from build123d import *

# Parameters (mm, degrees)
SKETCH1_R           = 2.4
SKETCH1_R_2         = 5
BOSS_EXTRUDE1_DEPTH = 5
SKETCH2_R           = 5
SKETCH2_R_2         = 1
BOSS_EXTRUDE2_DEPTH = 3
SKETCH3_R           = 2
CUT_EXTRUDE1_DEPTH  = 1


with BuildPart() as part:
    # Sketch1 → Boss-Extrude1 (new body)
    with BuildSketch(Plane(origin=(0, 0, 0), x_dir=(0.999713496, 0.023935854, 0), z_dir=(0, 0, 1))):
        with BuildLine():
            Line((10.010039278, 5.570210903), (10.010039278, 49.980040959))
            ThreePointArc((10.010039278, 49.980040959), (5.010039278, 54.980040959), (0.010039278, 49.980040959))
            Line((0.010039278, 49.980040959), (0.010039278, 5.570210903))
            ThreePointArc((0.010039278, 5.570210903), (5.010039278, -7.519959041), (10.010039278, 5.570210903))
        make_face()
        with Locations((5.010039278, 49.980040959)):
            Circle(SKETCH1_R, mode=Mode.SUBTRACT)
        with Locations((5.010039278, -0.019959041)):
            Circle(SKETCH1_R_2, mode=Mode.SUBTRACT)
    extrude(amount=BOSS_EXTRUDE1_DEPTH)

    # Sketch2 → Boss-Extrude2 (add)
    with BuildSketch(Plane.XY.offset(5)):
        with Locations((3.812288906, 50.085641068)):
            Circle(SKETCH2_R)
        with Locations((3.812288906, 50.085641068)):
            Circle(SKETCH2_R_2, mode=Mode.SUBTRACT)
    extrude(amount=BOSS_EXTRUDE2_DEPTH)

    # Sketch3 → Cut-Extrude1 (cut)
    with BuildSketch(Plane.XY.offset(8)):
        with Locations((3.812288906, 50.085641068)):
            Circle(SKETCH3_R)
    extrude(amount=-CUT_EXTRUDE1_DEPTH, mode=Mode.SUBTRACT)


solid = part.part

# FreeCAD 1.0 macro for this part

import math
import FreeCAD as App
import Part
import Sketcher

doc = App.newDocument("Part")
body = doc.addObject("PartDesign::Body", "Body")

sketch1 = body.newObject("Sketcher::SketchObject", "Sketch")
sketch1.AttachmentSupport = (doc.getObject("XY_Plane"), [""])
sketch1.MapMode = "FlatFace"
sketch1.addGeometry([
    Part.LineSegment(App.Vector(9.9, 5.8, 0), App.Vector(8.8, 50.2, 0)),
    Part.ArcOfCircle(Part.Circle(App.Vector(3.8, 50.1, 0), App.Vector(0, 0, 1), 5), math.radians(1), math.radians(181)),
    Part.LineSegment(App.Vector(-1.2, 50, 0), App.Vector(-0.1, 5.6, 0)),
    Part.ArcOfCircle(Part.Circle(App.Vector(5, 0.1, 0), App.Vector(0, 0, 1), 7.5), math.radians(133), math.radians(410)),
    Part.Circle(App.Vector(5, 0.1, 0), App.Vector(0, 0, 1), 5),
    Part.Circle(App.Vector(3.8, 50.1, 0), App.Vector(0, 0, 1), 2.4),
], False)
sketch1.addConstraint([
    Sketcher.Constraint("Tangent", 0, 2, 1, 1),
    Sketcher.Constraint("Tangent", 1, 2, 2, 1),
    Sketcher.Constraint("Coincident", 2, 2, 3, 1),
    Sketcher.Constraint("Coincident", 3, 2, 0, 1),
    Sketcher.Constraint("Coincident", 4, 3, 3, 3),
    Sketcher.Constraint("Coincident", 5, 3, 1, 3),
    Sketcher.Constraint("Equal", 1, 4),
    Sketcher.Constraint("Parallel", 0, 2),
    Sketcher.Constraint("Equal", 0, 2),
    Sketcher.Constraint("Diameter", 4, 10.0),
    Sketcher.Constraint("Diameter", 5, 4.8),
    Sketcher.Constraint("Radius", 3, 7.5),
    Sketcher.Constraint("Distance", 0, 44.40983),
    Sketcher.Constraint("DistanceX", -1, 1, 1, 3, 3.812289),
    Sketcher.Constraint("DistanceY", -1, 1, 1, 3, 50.085641),
    Sketcher.Constraint("DistanceX", -1, 1, 3, 3, 5.009082),
])
pad1 = body.newObject("PartDesign::Pad", "Pad")
pad1.Profile = sketch1
pad1.Length = 5

sketch2 = body.newObject("Sketcher::SketchObject", "Sketch001")
sketch2.AttachmentSupport = (doc.getObject("XY_Plane"), [""])
sketch2.MapMode = "FlatFace"
sketch2.AttachmentOffset = App.Placement(App.Vector(0, 0, 5), App.Rotation())
sketch2.addGeometry([
    Part.Circle(App.Vector(3.8, 50.1, 0), App.Vector(0, 0, 1), 5),
    Part.Circle(App.Vector(3.8, 50.1, 0), App.Vector(0, 0, 1), 1),
], False)
sketch2.addConstraint([
    Sketcher.Constraint("Coincident", 1, 3, 0, 3),
    Sketcher.Constraint("Diameter", 0, 10.0),
    Sketcher.Constraint("Diameter", 1, 2.0),
    Sketcher.Constraint("DistanceX", -1, 1, 0, 3, 3.812289),
    Sketcher.Constraint("DistanceY", -1, 1, 0, 3, 50.085641),
])
pad2 = body.newObject("PartDesign::Pad", "Pad001")
pad2.Profile = sketch2
pad2.Length = 3

sketch3 = body.newObject("Sketcher::SketchObject", "Sketch002")
sketch3.AttachmentSupport = (doc.getObject("XY_Plane"), [""])
sketch3.MapMode = "FlatFace"
sketch3.AttachmentOffset = App.Placement(App.Vector(0, 0, 8), App.Rotation())
sketch3.addGeometry(Part.Circle(App.Vector(3.8, 50.1, 0), App.Vector(0, 0, 1), 2), False)
sketch3.addConstraint([
    Sketcher.Constraint("Diameter", 0, 4.0),
    Sketcher.Constraint("DistanceX", -1, 1, 0, 3, 3.812289),
    Sketcher.Constraint("DistanceY", -1, 1, 0, 3, 50.085641),
])
pocket1 = body.newObject("PartDesign::Pocket", "Pocket")
pocket1.Profile = sketch3
pocket1.Length = 1

doc.recompute()
